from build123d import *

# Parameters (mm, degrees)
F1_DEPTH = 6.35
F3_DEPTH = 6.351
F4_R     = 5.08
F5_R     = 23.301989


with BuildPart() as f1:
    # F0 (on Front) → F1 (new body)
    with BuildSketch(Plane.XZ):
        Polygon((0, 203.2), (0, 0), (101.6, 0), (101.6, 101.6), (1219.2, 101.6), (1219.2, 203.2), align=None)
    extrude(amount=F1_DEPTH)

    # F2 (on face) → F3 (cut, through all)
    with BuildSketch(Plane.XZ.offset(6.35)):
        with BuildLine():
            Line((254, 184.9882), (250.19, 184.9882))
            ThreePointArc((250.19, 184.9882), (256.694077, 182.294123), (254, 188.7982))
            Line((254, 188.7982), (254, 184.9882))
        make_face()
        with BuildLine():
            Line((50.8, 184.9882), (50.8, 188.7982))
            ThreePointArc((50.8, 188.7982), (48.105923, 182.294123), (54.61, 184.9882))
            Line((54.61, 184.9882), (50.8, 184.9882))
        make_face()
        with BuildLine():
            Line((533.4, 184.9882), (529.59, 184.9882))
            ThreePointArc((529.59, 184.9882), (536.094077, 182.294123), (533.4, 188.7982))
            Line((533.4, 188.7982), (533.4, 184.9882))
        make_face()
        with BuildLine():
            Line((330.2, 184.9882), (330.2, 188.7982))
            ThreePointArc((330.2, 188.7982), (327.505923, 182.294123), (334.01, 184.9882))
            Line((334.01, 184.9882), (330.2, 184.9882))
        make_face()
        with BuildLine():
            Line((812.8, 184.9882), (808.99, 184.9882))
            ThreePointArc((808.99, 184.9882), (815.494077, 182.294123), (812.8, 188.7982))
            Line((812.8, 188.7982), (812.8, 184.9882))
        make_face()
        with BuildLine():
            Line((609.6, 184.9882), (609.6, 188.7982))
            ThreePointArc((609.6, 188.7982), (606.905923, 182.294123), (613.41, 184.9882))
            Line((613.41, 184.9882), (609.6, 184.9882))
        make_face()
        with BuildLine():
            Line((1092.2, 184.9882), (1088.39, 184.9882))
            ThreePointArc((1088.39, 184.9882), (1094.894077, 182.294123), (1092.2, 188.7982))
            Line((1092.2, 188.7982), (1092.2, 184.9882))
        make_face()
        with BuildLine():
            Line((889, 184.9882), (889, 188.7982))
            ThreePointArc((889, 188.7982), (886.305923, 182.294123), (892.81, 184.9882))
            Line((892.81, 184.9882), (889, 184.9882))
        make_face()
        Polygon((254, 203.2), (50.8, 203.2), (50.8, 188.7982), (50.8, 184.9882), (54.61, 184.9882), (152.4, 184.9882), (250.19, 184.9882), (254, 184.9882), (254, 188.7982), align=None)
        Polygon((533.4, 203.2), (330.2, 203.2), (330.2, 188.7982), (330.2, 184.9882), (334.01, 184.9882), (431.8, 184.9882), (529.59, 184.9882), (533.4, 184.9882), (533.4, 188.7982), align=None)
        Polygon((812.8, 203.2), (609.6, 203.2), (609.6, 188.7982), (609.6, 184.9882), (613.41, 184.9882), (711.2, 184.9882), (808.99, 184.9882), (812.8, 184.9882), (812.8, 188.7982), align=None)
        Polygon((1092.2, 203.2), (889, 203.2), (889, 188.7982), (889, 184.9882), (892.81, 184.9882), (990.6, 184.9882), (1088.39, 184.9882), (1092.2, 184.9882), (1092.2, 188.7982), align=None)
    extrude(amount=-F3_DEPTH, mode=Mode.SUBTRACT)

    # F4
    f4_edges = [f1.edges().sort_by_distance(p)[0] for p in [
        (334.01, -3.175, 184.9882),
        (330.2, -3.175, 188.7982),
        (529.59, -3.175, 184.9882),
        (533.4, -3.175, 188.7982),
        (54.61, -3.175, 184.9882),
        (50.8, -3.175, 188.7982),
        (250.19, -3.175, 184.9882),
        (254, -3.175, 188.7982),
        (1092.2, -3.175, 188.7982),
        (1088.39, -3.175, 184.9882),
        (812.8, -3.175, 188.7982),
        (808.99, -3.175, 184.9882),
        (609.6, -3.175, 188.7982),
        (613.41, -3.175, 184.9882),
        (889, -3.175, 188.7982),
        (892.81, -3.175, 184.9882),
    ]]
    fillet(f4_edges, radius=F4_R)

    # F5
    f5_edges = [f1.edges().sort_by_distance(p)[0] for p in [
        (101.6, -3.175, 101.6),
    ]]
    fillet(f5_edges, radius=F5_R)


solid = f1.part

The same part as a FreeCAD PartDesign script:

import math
import FreeCAD as App
import Part
import Sketcher

V = App.Vector
Q = App.Units.Quantity


def edges_at(feature, points):
    """Names of the edges that pass closest to the given points."""
    edges = feature.Shape.Edges
    near = lambda p: min(range(len(edges)), key=lambda i: edges[i].distToShape(Part.Vertex(*p))[0])
    return sorted({f"Edge{near(p) + 1}" for p in points})

doc = App.newDocument("Part")
body = doc.addObject("PartDesign::Body", "Body")

sketch1 = body.newObject("Sketcher::SketchObject", "Sketch")
sketch1.AttachmentSupport = (doc.getObject("XZ_Plane"), [""])
sketch1.MapMode = "FlatFace"
sketch1.addGeometry([
    Part.LineSegment(V(0, 203.2, 0), V(0, 0, 0)),
    Part.LineSegment(V(0, 0, 0), V(101.6, 0, 0)),
    Part.LineSegment(V(101.6, 0, 0), V(101.6, 101.6, 0)),
    Part.LineSegment(V(101.6, 101.6, 0), V(1219.2, 101.6, 0)),
    Part.LineSegment(V(1219.2, 101.6, 0), V(1219.2, 203.2, 0)),
    Part.LineSegment(V(1219.2, 203.2, 0), V(0, 203.2, 0)),
], False)
sketch1.addConstraint([
    Sketcher.Constraint("Coincident", 0, 2, 1, 1),
    Sketcher.Constraint("Coincident", 1, 2, 2, 1),
    Sketcher.Constraint("Coincident", 2, 2, 3, 1),
    Sketcher.Constraint("Coincident", 3, 2, 4, 1),
    Sketcher.Constraint("Coincident", 4, 2, 5, 1),
    Sketcher.Constraint("Coincident", 5, 2, 0, 1),
    Sketcher.Constraint("Vertical", 0),
    Sketcher.Constraint("Horizontal", 1),
    Sketcher.Constraint("Vertical", 2),
    Sketcher.Constraint("Horizontal", 3),
    Sketcher.Constraint("Vertical", 4),
    Sketcher.Constraint("Horizontal", 5),
    Sketcher.Constraint("Coincident", 0, 2, -1, 1),
    Sketcher.Constraint("Equal", 1, 2),
    Sketcher.Constraint("Equal", 2, 4),
    Sketcher.Constraint("DistanceX", 1, 1, 1, 2, Q("4 in")),
    Sketcher.Constraint("DistanceX", 3, 1, 3, 2, Q("44 in")),
])
pad1 = body.newObject("PartDesign::Pad", "Pad")
pad1.Profile = sketch1
pad1.Length = Q("0.25 in")

sketch2 = body.newObject("Sketcher::SketchObject", "Sketch001")
sketch2.AttachmentSupport = (doc.getObject("XZ_Plane"), [""])
sketch2.MapMode = "FlatFace"
sketch2.AttachmentOffset = App.Placement(V(0, 0, 0.25 * 25.4), App.Rotation())
sketch2.addGeometry([
    Part.ArcOfCircle(Part.Circle(V(254, 184.9882, 0), V(0, 0, 1), 3.81), math.radians(179.999999), math.radians(450.000001)),
    Part.LineSegment(V(254, 188.7982, 0), V(254, 203.2, 0)),
    Part.LineSegment(V(254, 203.2, 0), V(50.8, 203.2, 0)),
    Part.LineSegment(V(50.8, 203.2, 0), V(50.8, 188.7982, 0)),
    Part.ArcOfCircle(Part.Circle(V(50.8, 184.9882, 0), V(0, 0, 1), 3.81), math.radians(89.999999), math.radians(360.000001)),
    Part.LineSegment(V(54.61, 184.9882, 0), V(250.19, 184.9882, 0)),
    Part.ArcOfCircle(Part.Circle(V(533.4, 184.9882, 0), V(0, 0, 1), 3.81), math.radians(179.999999), math.radians(450.000001)),
    Part.LineSegment(V(533.4, 188.7982, 0), V(533.4, 203.2, 0)),
    Part.LineSegment(V(533.4, 203.2, 0), V(330.2, 203.2, 0)),
    Part.LineSegment(V(330.2, 203.2, 0), V(330.2, 188.7982, 0)),
    Part.ArcOfCircle(Part.Circle(V(330.2, 184.9882, 0), V(0, 0, 1), 3.81), math.radians(89.999999), math.radians(360.000001)),
    Part.LineSegment(V(334.01, 184.9882, 0), V(529.59, 184.9882, 0)),
    Part.ArcOfCircle(Part.Circle(V(812.8, 184.9882, 0), V(0, 0, 1), 3.81), math.radians(179.999999), math.radians(450.000001)),
    Part.LineSegment(V(812.8, 188.7982, 0), V(812.8, 203.2, 0)),
    Part.LineSegment(V(812.8, 203.2, 0), V(609.6, 203.2, 0)),
    Part.LineSegment(V(609.6, 203.2, 0), V(609.6, 188.7982, 0)),
    Part.ArcOfCircle(Part.Circle(V(609.6, 184.9882, 0), V(0, 0, 1), 3.81), math.radians(89.999999), math.radians(360.000001)),
    Part.LineSegment(V(613.41, 184.9882, 0), V(808.99, 184.9882, 0)),
    Part.ArcOfCircle(Part.Circle(V(1092.2, 184.9882, 0), V(0, 0, 1), 3.81), math.radians(179.999999), math.radians(450.000001)),
    Part.LineSegment(V(1092.2, 188.7982, 0), V(1092.2, 203.2, 0)),
    Part.LineSegment(V(1092.2, 203.2, 0), V(889, 203.2, 0)),
    Part.LineSegment(V(889, 203.2, 0), V(889, 188.7982, 0)),
    Part.ArcOfCircle(Part.Circle(V(889, 184.9882, 0), V(0, 0, 1), 3.81), math.radians(89.999999), math.radians(360.000001)),
    Part.LineSegment(V(892.81, 184.9882, 0), V(1088.39, 184.9882, 0)),
], False)
sketch2.addConstraint([
    Sketcher.Constraint("Coincident", 0, 2, 1, 1),
    Sketcher.Constraint("Coincident", 1, 2, 2, 1),
    Sketcher.Constraint("Coincident", 2, 2, 3, 1),
    Sketcher.Constraint("Coincident", 3, 2, 4, 1),
    Sketcher.Constraint("Coincident", 4, 2, 5, 1),
    Sketcher.Constraint("Coincident", 5, 2, 0, 1),
    Sketcher.Constraint("Coincident", 6, 2, 7, 1),
    Sketcher.Constraint("Coincident", 7, 2, 8, 1),
    Sketcher.Constraint("Coincident", 8, 2, 9, 1),
    Sketcher.Constraint("Coincident", 9, 2, 10, 1),
    Sketcher.Constraint("Coincident", 10, 2, 11, 1),
    Sketcher.Constraint("Coincident", 11, 2, 6, 1),
    Sketcher.Constraint("Coincident", 12, 2, 13, 1),
    Sketcher.Constraint("Coincident", 13, 2, 14, 1),
    Sketcher.Constraint("Coincident", 14, 2, 15, 1),
    Sketcher.Constraint("Coincident", 15, 2, 16, 1),
    Sketcher.Constraint("Coincident", 16, 2, 17, 1),
    Sketcher.Constraint("Coincident", 17, 2, 12, 1),
    Sketcher.Constraint("Coincident", 18, 2, 19, 1),
    Sketcher.Constraint("Coincident", 19, 2, 20, 1),
    Sketcher.Constraint("Coincident", 20, 2, 21, 1),
    Sketcher.Constraint("Coincident", 21, 2, 22, 1),
    Sketcher.Constraint("Coincident", 22, 2, 23, 1),
    Sketcher.Constraint("Coincident", 23, 2, 18, 1),
    Sketcher.Constraint("Vertical", 1),
    Sketcher.Constraint("Horizontal", 2),
    Sketcher.Constraint("Vertical", 3),
    Sketcher.Constraint("Horizontal", 5),
    Sketcher.Constraint("Vertical", 7),
    Sketcher.Constraint("Horizontal", 8),
    Sketcher.Constraint("Vertical", 9),
    Sketcher.Constraint("Horizontal", 11),
    Sketcher.Constraint("Vertical", 13),
    Sketcher.Constraint("Horizontal", 14),
    Sketcher.Constraint("Vertical", 15),
    Sketcher.Constraint("Horizontal", 17),
    Sketcher.Constraint("Vertical", 19),
    Sketcher.Constraint("Horizontal", 20),
    Sketcher.Constraint("Vertical", 21),
    Sketcher.Constraint("Horizontal", 23),
    Sketcher.Constraint("Equal", 0, 4),
    Sketcher.Constraint("Equal", 4, 6),
    Sketcher.Constraint("Equal", 6, 10),
    Sketcher.Constraint("Equal", 10, 12),
    Sketcher.Constraint("Equal", 12, 16),
    Sketcher.Constraint("Equal", 16, 18),
    Sketcher.Constraint("Equal", 18, 22),
    Sketcher.Constraint("Horizontal", 0, 3, 4, 3),
    Sketcher.Constraint("Horizontal", 4, 3, 6, 3),
    Sketcher.Constraint("Horizontal", 6, 3, 10, 3),
    Sketcher.Constraint("Horizontal", 10, 3, 12, 3),
    Sketcher.Constraint("Horizontal", 12, 3, 16, 3),
    Sketcher.Constraint("Horizontal", 16, 3, 18, 3),
    Sketcher.Constraint("Horizontal", 18, 3, 22, 3),
    Sketcher.Constraint("Horizontal", 22, 3, 4, 2),
    Sketcher.Constraint("Horizontal", 2, 2, 7, 2),
    Sketcher.Constraint("Horizontal", 5, 2, 10, 2),
    Sketcher.Constraint("Horizontal", 8, 2, 13, 2),
    Sketcher.Constraint("Horizontal", 11, 2, 16, 2),
    Sketcher.Constraint("Horizontal", 14, 2, 19, 2),
    Sketcher.Constraint("Horizontal", 17, 2, 22, 2),
    Sketcher.Constraint("Vertical", 4, 3, 2, 2),
    Sketcher.Constraint("Vertical", 10, 3, 8, 2),
    Sketcher.Constraint("Vertical", 16, 3, 14, 2),
    Sketcher.Constraint("Vertical", 22, 3, 20, 2),
    Sketcher.Constraint("Equal", 2, 8),
    Sketcher.Constraint("Equal", 5, 11),
    Sketcher.Constraint("Equal", 8, 14),
    Sketcher.Constraint("Equal", 11, 17),
    Sketcher.Constraint("Equal", 14, 20),
    Sketcher.Constraint("Equal", 17, 23),
    Sketcher.Constraint("DistanceX", 2, 2, 2, 1, Q("8 in")),
    Sketcher.Constraint("Radius", 0, Q("0.15 in")),
    Sketcher.Constraint("DistanceX", 5, 1, 5, 2, Q("7.7 in")),
    Sketcher.Constraint("DistanceX", -1, 1, 0, 3, Q("10 in")),
    Sketcher.Constraint("DistanceX", -1, 1, 6, 3, Q("21 in")),
    Sketcher.Constraint("DistanceX", -1, 1, 12, 3, Q("32 in")),
    Sketcher.Constraint("DistanceX", -1, 1, 18, 3, Q("43 in")),
    Sketcher.Constraint("DistanceY", -1, 1, 1, 2, Q("8 in")),
    Sketcher.Constraint("DistanceY", 1, 1, 1, 2, Q("0.567 in")),
])
pocket1 = body.newObject("PartDesign::Pocket", "Pocket")
pocket1.Profile = sketch2
pocket1.Type = "ThroughAll"
doc.recompute()

fillet = body.newObject("PartDesign::Fillet", "Fillet")
fillet.Base = (pocket1, edges_at(pocket1, [
    (334.01, -3.175, 184.988),
    (330.2, -3.175, 188.798),
    (529.59, -3.175, 184.988),
    (533.4, -3.175, 188.798),
    (54.61, -3.175, 184.988),
    (50.8, -3.175, 188.798),
    (250.19, -3.175, 184.988),
    (254, -3.175, 188.798),
    (1092.2, -3.175, 188.798),
    (1088.39, -3.175, 184.988),
    (812.8, -3.175, 188.798),
    (808.99, -3.175, 184.988),
    (609.6, -3.175, 188.798),
    (613.41, -3.175, 184.988),
    (889, -3.175, 188.798),
    (892.81, -3.175, 184.988),
]))
fillet.Radius = Q("0.2 in")
doc.recompute()

fillet2 = body.newObject("PartDesign::Fillet", "Fillet001")
fillet2.Base = (fillet, edges_at(fillet, [(101.6, -3.175, 101.6)]))
fillet2.Radius = 23.301989

doc.recompute()
